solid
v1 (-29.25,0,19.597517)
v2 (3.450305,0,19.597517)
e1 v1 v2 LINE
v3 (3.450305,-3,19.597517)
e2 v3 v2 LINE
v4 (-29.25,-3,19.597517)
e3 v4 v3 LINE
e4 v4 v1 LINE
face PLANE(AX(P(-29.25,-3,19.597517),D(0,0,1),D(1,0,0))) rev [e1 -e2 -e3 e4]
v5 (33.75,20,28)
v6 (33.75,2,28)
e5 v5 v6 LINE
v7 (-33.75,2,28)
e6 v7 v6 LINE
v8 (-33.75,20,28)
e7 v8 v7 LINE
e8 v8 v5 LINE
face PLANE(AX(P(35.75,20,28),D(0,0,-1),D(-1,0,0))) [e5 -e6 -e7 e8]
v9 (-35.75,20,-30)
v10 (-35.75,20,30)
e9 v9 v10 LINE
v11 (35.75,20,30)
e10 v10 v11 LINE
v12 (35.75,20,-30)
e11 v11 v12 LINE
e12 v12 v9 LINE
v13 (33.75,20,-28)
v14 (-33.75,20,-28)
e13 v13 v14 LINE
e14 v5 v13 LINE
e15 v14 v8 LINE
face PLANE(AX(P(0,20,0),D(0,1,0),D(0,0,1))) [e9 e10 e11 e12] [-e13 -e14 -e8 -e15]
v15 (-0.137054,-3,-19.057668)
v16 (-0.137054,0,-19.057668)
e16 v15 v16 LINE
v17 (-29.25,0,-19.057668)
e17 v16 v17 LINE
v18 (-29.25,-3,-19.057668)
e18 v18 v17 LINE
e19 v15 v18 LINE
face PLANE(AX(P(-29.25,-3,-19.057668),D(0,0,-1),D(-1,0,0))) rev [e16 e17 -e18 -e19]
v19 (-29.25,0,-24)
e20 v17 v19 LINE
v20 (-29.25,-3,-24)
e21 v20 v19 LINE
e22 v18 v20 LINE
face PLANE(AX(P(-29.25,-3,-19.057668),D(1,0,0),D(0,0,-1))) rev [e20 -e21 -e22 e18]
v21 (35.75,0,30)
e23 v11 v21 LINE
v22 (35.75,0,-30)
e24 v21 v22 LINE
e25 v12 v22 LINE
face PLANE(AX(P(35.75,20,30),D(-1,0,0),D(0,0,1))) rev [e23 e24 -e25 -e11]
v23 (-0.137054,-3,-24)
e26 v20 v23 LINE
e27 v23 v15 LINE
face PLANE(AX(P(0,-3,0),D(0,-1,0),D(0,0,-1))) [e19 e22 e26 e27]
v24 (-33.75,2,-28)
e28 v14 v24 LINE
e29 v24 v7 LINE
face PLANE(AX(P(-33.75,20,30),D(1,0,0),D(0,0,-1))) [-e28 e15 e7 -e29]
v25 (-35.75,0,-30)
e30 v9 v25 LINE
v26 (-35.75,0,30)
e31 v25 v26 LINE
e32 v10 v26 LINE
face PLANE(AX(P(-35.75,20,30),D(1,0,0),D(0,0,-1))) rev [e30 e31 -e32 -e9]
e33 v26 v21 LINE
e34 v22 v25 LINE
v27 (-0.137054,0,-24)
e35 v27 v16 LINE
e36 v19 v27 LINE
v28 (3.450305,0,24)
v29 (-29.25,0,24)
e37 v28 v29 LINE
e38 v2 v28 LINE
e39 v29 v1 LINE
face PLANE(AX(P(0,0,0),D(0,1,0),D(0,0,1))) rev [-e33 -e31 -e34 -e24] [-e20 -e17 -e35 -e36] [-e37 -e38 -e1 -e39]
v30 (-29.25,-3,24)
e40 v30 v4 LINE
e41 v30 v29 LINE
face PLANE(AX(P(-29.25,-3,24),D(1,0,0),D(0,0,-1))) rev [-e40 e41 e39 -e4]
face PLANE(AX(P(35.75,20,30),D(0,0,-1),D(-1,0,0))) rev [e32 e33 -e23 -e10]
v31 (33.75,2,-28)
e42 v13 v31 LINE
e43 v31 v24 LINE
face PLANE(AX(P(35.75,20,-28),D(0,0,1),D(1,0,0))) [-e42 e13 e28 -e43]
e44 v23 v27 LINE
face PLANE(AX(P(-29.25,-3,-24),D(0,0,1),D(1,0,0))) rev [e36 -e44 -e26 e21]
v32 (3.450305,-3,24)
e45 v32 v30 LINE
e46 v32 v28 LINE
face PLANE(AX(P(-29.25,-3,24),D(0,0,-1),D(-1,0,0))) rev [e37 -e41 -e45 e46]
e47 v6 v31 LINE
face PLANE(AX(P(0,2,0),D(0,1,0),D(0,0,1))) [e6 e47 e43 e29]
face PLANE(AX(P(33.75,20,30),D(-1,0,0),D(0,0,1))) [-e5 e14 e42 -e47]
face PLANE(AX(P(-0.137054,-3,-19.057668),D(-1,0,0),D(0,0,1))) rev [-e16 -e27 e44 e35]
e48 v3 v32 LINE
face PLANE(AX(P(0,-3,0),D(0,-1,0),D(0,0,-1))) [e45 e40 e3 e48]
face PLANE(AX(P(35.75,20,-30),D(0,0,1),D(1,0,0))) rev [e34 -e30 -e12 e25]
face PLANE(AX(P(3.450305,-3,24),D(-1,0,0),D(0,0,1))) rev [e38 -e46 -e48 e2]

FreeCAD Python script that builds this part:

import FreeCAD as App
import Part
import Sketcher

V = App.Vector
Q = App.Units.Quantity


def faces_at(feature, points):
    """Names of the faces that lie closest to the given points."""
    faces = feature.Shape.Faces
    near = lambda p: min(range(len(faces)), key=lambda i: faces[i].distToShape(Part.Vertex(*p))[0])
    return sorted({f"Face{near(p) + 1}" for p in points})

doc = App.newDocument("Part")
body = doc.addObject("PartDesign::Body", "Body")

# Sketch on XZ plane
sketch1 = body.newObject("Sketcher::SketchObject", "Sketch")
sketch1.AttachmentSupport = (doc.getObject("XZ_Plane"), [""])
sketch1.MapMode = "FlatFace"
sketch1.addGeometry([
    Part.LineSegment(V(-36, -30, 0), V(-36, 30, 0)),
    Part.LineSegment(V(-36, 30, 0), V(36, 30, 0)),
    Part.LineSegment(V(36, 30, 0), V(36, -30, 0)),
    Part.LineSegment(V(36, -30, 0), V(-36, -30, 0)),
], False)
sketch1.addConstraint([
    Sketcher.Constraint("Coincident", 0, 2, 1, 1),
    Sketcher.Constraint("Coincident", 1, 2, 2, 1),
    Sketcher.Constraint("Coincident", 2, 2, 3, 1),
    Sketcher.Constraint("Coincident", 3, 2, 0, 1),
    Sketcher.Constraint("Vertical", 0),
    Sketcher.Constraint("Horizontal", 1),
    Sketcher.Constraint("Vertical", 2),
    Sketcher.Constraint("Horizontal", 3),
    Sketcher.Constraint("Symmetric", 0, 2, 2, 2, -1, 1),
    Sketcher.Constraint("DistanceY", 0, 1, 0, 2, Q("60 mm")),
    Sketcher.Constraint("DistanceX", 1, 1, 1, 2, Q("71.5 mm")),
])
pad1 = body.newObject("PartDesign::Pad", "Pad")
pad1.Profile = sketch1
pad1.Length = 20
pad1.Reversed = True
doc.recompute()

thickness = body.newObject("PartDesign::Thickness", "Thickness")
thickness.Base = (pad1, faces_at(pad1, [(0, 20, 0)]))
thickness.Value = 2
thickness.Reversed = True
thickness.Join = "Intersection"

# Sketch on XZ plane
sketch2 = body.newObject("Sketcher::SketchObject", "Sketch001")
sketch2.AttachmentSupport = (doc.getObject("XZ_Plane"), [""])
sketch2.MapMode = "FlatFace"
sketch2.addGeometry([
    Part.LineSegment(V(-29.2, 24, 0), V(-29.2, 19.6, 0)),  # 0
    Part.LineSegment(V(-29.2, 19.6, 0), V(3.5, 19.6, 0)),  # 1
    Part.LineSegment(V(3.5, 19.6, 0), V(3.5, 24, 0)),  # 2
    Part.LineSegment(V(3.5, 24, 0), V(-29.2, 24, 0)),  # 3
    Part.LineSegment(V(-29.3, -19.1, 0), V(-29.3, -24, 0)),  # 4
    Part.LineSegment(V(-29.3, -24, 0), V(-0.1, -24, 0)),  # 5
    Part.LineSegment(V(-0.1, -24, 0), V(-0.1, -19.1, 0)),  # 6
    Part.LineSegment(V(-0.1, -19.1, 0), V(-29.3, -19.1, 0)),  # 7
], False)
sketch2.addConstraint([
    Sketcher.Constraint("Coincident", 0, 2, 1, 1),
    Sketcher.Constraint("Coincident", 1, 2, 2, 1),
    Sketcher.Constraint("Coincident", 2, 2, 3, 1),
    Sketcher.Constraint("Coincident", 3, 2, 0, 1),
    Sketcher.Constraint("Coincident", 4, 2, 5, 1),
    Sketcher.Constraint("Coincident", 5, 2, 6, 1),
    Sketcher.Constraint("Coincident", 6, 2, 7, 1),
    Sketcher.Constraint("Coincident", 7, 2, 4, 1),
    Sketcher.Constraint("Vertical", 0),
    Sketcher.Constraint("Horizontal", 1),
    Sketcher.Constraint("Vertical", 2),
    Sketcher.Constraint("Horizontal", 3),
    Sketcher.Constraint("Vertical", 4),
    Sketcher.Constraint("Horizontal", 5),
    Sketcher.Constraint("Vertical", 6),
    Sketcher.Constraint("Horizontal", 7),
    Sketcher.Constraint("Symmetric", 3, 2, 4, 2, -1),
    Sketcher.Constraint("DistanceY", -1, 1, 2, 2, Q("24 mm")),
    Sketcher.Constraint("DistanceX", 0, 2, -1, 1, Q("29.25 mm")),
    Sketcher.Constraint("DistanceX", 1, 1, 1, 2, Q("32.700305 mm")),
    Sketcher.Constraint("DistanceX", 5, 1, 5, 2, Q("29.112946 mm")),
    Sketcher.Constraint("DistanceY", 0, 2, 0, 1, Q("4.402483 mm")),
    Sketcher.Constraint("DistanceY", 4, 2, 4, 1, Q("4.942332 mm")),
])
pad2 = body.newObject("PartDesign::Pad", "Pad001")
pad2.Profile = sketch2
pad2.Length = 3

doc.recompute()
